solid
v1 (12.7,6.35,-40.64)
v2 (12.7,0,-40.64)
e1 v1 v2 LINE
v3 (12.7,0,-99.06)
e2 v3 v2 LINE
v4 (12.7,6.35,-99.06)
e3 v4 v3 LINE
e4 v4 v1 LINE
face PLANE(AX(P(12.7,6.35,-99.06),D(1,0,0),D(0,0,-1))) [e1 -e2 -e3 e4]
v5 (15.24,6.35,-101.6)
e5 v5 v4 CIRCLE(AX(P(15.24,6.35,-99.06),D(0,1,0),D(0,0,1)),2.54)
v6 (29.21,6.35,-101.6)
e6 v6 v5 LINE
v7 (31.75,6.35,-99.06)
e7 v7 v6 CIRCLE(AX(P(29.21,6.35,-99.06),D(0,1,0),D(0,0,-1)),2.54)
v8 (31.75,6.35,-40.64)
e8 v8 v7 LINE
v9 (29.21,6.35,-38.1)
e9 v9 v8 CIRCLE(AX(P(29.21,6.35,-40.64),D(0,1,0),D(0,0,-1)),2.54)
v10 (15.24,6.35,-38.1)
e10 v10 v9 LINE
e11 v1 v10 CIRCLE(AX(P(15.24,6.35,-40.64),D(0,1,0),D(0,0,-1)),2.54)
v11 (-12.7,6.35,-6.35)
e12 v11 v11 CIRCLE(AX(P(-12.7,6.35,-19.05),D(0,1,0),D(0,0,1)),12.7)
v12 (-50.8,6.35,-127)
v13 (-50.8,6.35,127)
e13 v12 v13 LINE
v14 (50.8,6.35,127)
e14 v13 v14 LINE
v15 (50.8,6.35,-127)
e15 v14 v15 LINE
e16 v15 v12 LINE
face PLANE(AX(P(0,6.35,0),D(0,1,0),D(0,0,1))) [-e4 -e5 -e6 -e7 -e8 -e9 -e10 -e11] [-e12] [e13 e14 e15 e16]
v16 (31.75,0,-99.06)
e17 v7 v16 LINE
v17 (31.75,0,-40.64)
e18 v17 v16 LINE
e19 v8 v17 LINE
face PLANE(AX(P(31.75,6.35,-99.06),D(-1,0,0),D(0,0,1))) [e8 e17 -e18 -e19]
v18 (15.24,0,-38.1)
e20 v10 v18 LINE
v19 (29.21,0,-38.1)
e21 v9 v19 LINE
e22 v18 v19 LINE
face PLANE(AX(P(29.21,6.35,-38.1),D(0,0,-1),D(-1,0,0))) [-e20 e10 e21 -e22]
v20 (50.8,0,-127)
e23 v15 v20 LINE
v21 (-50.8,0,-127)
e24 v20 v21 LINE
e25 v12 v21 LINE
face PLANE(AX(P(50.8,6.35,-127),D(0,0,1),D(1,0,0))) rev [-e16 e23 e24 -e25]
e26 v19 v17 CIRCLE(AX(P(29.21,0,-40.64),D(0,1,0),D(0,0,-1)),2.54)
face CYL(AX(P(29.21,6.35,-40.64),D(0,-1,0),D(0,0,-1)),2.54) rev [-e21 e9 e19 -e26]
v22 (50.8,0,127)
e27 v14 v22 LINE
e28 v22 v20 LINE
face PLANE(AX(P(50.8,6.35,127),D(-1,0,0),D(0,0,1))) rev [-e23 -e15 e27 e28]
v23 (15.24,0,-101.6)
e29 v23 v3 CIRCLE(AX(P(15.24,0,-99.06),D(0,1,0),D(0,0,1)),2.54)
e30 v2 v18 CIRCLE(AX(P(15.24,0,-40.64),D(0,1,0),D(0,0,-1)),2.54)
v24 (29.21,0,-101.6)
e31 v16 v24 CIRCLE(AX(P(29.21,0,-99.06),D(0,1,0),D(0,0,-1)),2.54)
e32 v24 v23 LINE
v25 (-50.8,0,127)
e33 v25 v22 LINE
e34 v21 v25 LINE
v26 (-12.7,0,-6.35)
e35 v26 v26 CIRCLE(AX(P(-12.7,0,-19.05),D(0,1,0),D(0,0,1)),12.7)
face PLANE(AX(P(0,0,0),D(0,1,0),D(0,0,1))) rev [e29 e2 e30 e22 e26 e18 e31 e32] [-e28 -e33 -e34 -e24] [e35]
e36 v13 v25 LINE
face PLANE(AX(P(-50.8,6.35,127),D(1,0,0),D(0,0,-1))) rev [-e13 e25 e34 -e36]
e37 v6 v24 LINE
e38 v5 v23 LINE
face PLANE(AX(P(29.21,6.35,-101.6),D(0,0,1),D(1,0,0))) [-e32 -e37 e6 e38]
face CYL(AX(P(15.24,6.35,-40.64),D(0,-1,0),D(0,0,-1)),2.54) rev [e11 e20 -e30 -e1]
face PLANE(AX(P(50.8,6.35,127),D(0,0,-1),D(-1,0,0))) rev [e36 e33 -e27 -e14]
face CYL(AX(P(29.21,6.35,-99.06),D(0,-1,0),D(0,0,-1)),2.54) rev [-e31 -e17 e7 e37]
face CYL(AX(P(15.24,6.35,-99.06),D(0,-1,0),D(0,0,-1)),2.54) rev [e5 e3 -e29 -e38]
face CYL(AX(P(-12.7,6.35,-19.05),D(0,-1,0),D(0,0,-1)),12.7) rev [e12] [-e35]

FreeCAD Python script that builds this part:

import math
import FreeCAD as App
import Part
import Sketcher
Q = App.Units.Quantity


def add_polygon(sketch, points):
    """Adds a closed chain of lines whose ends are joined by coincident constraints."""
    first, n = sketch.GeometryCount, len(points)
    for a, b in zip(points, points[1:] + points[:1]):
        sketch.addGeometry(Part.LineSegment(App.Vector(*a, 0), App.Vector(*b, 0)), False)
    for i in range(n):
        sketch.addConstraint(Sketcher.Constraint("Coincident", first + i, 2, first + (i + 1) % n, 1))

doc = App.newDocument("Part")
params = doc.addObject("Spreadsheet::Sheet", "Params")
for row, (alias, value) in enumerate([
    ("sketch1_diameter", "1 in"),
    ("sketch1_radius", "0.1 in"),
    ("sketch1_width", "4 in"),
    ("sketch1_height", "10 in"),
    ("sketch1_height2", "2.3 in"),
    ("pad1_length", "0.25 in"),
], start=1):
    params.set(f"A{row}", alias)
    params.set(f"B{row}", "=" + value)
    params.setAlias(f"B{row}", alias)

body = doc.addObject("PartDesign::Body", "Body")

sketch1 = body.newObject("Sketcher::SketchObject", "Sketch")
sketch1.AttachmentSupport = (doc.getObject("XZ_Plane"), [""])
sketch1.MapMode = "FlatFace"
add_polygon(sketch1, [(-50.8, -127), (-50.8, 127), (50.8, 127), (50.8, -127)])
sketch1.addGeometry(Part.Circle(App.Vector(-12.7, -19.05, 0), App.Vector(0, 0, 1), 12.7), False)
sketch1.addGeometry(Part.LineSegment(App.Vector(15.24, -101.6, 0), App.Vector(29.21, -101.6, 0)), False)
sketch1.addGeometry(Part.ArcOfCircle(Part.Circle(App.Vector(29.21, -99.06, 0), App.Vector(0, 0, 1), 2.54), math.radians(-90), math.radians(0)), False)
sketch1.addGeometry(Part.LineSegment(App.Vector(31.75, -99.06, 0), App.Vector(31.75, -40.64, 0)), False)
sketch1.addGeometry(Part.ArcOfCircle(Part.Circle(App.Vector(29.21, -40.64, 0), App.Vector(0, 0, 1), 2.54), math.radians(0), math.radians(90)), False)
sketch1.addGeometry(Part.LineSegment(App.Vector(29.21, -38.1, 0), App.Vector(15.24, -38.1, 0)), False)
sketch1.addGeometry(Part.ArcOfCircle(Part.Circle(App.Vector(15.24, -40.64, 0), App.Vector(0, 0, 1), 2.54), math.radians(90), math.radians(180)), False)
sketch1.addGeometry(Part.LineSegment(App.Vector(12.7, -40.64, 0), App.Vector(12.7, -99.06, 0)), False)
sketch1.addGeometry(Part.ArcOfCircle(Part.Circle(App.Vector(15.24, -99.06, 0), App.Vector(0, 0, 1), 2.54), math.radians(-180), math.radians(-90)), False)
sketch1.addConstraint(Sketcher.Constraint("Tangent", 5, 2, 6, 1))
sketch1.addConstraint(Sketcher.Constraint("Tangent", 6, 2, 7, 1))
sketch1.addConstraint(Sketcher.Constraint("Tangent", 7, 2, 8, 1))
sketch1.addConstraint(Sketcher.Constraint("Tangent", 8, 2, 9, 1))
sketch1.addConstraint(Sketcher.Constraint("Tangent", 9, 2, 10, 1))
sketch1.addConstraint(Sketcher.Constraint("Tangent", 10, 2, 11, 1))
sketch1.addConstraint(Sketcher.Constraint("Tangent", 11, 2, 12, 1))
sketch1.addConstraint(Sketcher.Constraint("Tangent", 12, 2, 5, 1))
sketch1.addConstraint(Sketcher.Constraint("Vertical", 0))
sketch1.addConstraint(Sketcher.Constraint("Horizontal", 1))
sketch1.addConstraint(Sketcher.Constraint("Vertical", 2))
sketch1.addConstraint(Sketcher.Constraint("Horizontal", 3))
sketch1.addConstraint(Sketcher.Constraint("Horizontal", 5))
sketch1.addConstraint(Sketcher.Constraint("Vertical", 7))
sketch1.addConstraint(Sketcher.Constraint("Horizontal", 9))
sketch1.addConstraint(Sketcher.Constraint("Vertical", 11))
sketch1.addConstraint(Sketcher.Constraint("Equal", 6, 8))
sketch1.addConstraint(Sketcher.Constraint("Equal", 8, 10))
sketch1.addConstraint(Sketcher.Constraint("Equal", 10, 12))
sketch1.addConstraint(Sketcher.Constraint("Symmetric", 0, 2, 2, 2, -1, 1))
sketch1.addConstraint(Sketcher.Constraint("Diameter", 4, Q("1 in")))
sketch1.addConstraint(Sketcher.Constraint("Radius", 6, Q("0.1 in")))
sketch1.addConstraint(Sketcher.Constraint("DistanceX", 1, 1, 1, 2, Q("4 in")))
sketch1.addConstraint(Sketcher.Constraint("DistanceY", 0, 1, 0, 2, Q("10 in")))
sketch1.addConstraint(Sketcher.Constraint("DistanceY", 7, 1, 7, 2, Q("2.3 in")))
sketch1.addConstraint(Sketcher.Constraint("DistanceY", 5, 2, -1, 1, Q("4 in")))
sketch1.addConstraint(Sketcher.Constraint("DistanceX", 5, 1, 5, 2, Q("0.55 in")))
sketch1.addConstraint(Sketcher.Constraint("DistanceX", 4, 3, -1, 1, Q("0.5 in")))
sketch1.addConstraint(Sketcher.Constraint("DistanceX", -1, 1, 10, 3, Q("0.6 in")))
sketch1.addConstraint(Sketcher.Constraint("DistanceY", 4, 3, -1, 1, Q("0.75 in")))
sketch1.setExpression("Constraints[24]", "Params.sketch1_diameter")
sketch1.setExpression("Constraints[25]", "Params.sketch1_radius")
sketch1.setExpression("Constraints[26]", "Params.sketch1_width")
sketch1.setExpression("Constraints[27]", "Params.sketch1_height")
sketch1.setExpression("Constraints[28]", "Params.sketch1_height2")
pad1 = body.newObject("PartDesign::Pad", "Pad")
pad1.Profile = sketch1
pad1.setExpression("Length", "Params.pad1_length")
pad1.Reversed = True

doc.recompute()
